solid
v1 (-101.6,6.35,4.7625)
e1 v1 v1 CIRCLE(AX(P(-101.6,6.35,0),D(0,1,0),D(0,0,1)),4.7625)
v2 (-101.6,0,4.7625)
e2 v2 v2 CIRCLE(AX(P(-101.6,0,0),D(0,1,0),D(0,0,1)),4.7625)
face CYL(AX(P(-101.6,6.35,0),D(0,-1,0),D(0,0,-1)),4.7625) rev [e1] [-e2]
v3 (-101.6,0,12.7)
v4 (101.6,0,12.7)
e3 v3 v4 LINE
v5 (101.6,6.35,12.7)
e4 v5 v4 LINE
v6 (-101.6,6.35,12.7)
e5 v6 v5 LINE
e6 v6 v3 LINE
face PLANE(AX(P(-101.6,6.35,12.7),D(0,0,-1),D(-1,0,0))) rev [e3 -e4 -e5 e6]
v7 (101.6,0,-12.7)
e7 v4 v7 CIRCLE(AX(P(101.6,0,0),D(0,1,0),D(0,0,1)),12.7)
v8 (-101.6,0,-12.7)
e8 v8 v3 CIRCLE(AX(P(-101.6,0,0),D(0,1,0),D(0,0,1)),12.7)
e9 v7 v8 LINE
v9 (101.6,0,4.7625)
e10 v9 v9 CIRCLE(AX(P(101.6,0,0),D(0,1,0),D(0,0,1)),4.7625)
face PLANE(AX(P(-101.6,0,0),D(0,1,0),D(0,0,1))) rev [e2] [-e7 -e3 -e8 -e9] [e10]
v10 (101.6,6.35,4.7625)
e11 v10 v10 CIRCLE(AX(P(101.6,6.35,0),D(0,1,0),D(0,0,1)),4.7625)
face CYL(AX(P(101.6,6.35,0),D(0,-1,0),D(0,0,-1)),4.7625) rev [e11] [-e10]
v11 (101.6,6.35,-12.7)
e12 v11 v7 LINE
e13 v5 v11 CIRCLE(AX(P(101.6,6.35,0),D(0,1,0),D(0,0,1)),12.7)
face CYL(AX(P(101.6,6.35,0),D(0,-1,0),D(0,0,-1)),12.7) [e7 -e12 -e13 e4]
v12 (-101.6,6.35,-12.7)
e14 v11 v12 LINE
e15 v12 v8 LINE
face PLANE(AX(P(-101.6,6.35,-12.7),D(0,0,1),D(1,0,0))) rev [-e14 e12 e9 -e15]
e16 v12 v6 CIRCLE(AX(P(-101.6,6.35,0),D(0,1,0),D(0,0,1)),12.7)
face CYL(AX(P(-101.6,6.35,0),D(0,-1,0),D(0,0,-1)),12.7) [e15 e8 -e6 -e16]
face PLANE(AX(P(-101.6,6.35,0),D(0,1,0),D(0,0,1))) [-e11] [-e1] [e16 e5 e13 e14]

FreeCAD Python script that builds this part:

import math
import FreeCAD as App
import Part
import Sketcher

V = App.Vector
Q = App.Units.Quantity

doc = App.newDocument("Part")
body = doc.addObject("PartDesign::Body", "Body")

# Sketch on XZ plane
sketch1 = doc.addObject("Sketcher::SketchObject", "Sketch")
body.addObject(sketch1)
sketch1.AttachmentSupport = (doc.XZ_Plane, [""])
sketch1.MapMode = "FlatFace"
sketch1.addGeometry(Part.LineSegment(V(101.6, -12.7, 0), V(-101.6, -12.7, 0)), False)
sketch1.addGeometry(Part.ArcOfCircle(Part.Circle(V(-101.6, 0, 0), V(0, 0, 1), 12.7), math.radians(90), math.radians(270)), False)
sketch1.addGeometry(Part.LineSegment(V(-101.6, 12.7, 0), V(101.6, 12.7, 0)), False)
sketch1.addGeometry(Part.ArcOfCircle(Part.Circle(V(101.6, 0, 0), V(0, 0, 1), 12.7), math.radians(-90), math.radians(90)), False)
sketch1.addGeometry(Part.Circle(V(101.6, 0, 0), V(0, 0, 1), 4.8), False)
sketch1.addGeometry(Part.Circle(V(-101.6, 0, 0), V(0, 0, 1), 4.8), False)
sketch1.addConstraint(Sketcher.Constraint("Tangent", 0, 2, 1, 2))
sketch1.addConstraint(Sketcher.Constraint("Tangent", 1, 1, 2, 1))
sketch1.addConstraint(Sketcher.Constraint("Tangent", 2, 2, 3, 2))
sketch1.addConstraint(Sketcher.Constraint("Tangent", 3, 1, 0, 1))
sketch1.addConstraint(Sketcher.Constraint("Horizontal", 0))
sketch1.addConstraint(Sketcher.Constraint("Horizontal", 2))
sketch1.addConstraint(Sketcher.Constraint("Coincident", 4, 3, 3, 3))
sketch1.addConstraint(Sketcher.Constraint("Coincident", 5, 3, 1, 3))
sketch1.addConstraint(Sketcher.Constraint("Equal", 4, 5))
sketch1.addConstraint(Sketcher.Constraint("Symmetric", 1, 3, 3, 3, -1, 1))
sketch1.addConstraint(Sketcher.Constraint("Radius", 1, Q("0.5 in")))
sketch1.addConstraint(Sketcher.Constraint("DistanceX", 0, 2, 0, 1, Q("8 in")))
sketch1.addConstraint(Sketcher.Constraint("Diameter", 4, Q("0.375 in")))
pad1 = doc.addObject("PartDesign::Pad", "Pad")
body.addObject(pad1)
pad1.Profile = sketch1
pad1.Length = Q("0.25 in")
pad1.Reversed = True

doc.recompute()
